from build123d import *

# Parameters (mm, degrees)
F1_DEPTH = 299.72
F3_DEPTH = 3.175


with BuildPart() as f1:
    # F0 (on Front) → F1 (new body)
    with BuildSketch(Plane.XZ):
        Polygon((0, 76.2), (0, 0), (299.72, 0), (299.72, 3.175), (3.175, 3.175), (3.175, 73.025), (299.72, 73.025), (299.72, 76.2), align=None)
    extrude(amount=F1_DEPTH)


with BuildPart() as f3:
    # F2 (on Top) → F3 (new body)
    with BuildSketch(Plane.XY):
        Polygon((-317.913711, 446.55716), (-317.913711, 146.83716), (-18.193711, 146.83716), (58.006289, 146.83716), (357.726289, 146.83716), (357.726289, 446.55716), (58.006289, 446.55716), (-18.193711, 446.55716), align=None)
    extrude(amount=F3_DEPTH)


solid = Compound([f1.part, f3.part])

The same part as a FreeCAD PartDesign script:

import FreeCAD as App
import Part
import Sketcher

V = App.Vector
Q = App.Units.Quantity


def add_polygon(sketch, points):
    """Adds a closed chain of lines whose ends are joined by coincident constraints."""
    first, n = sketch.GeometryCount, len(points)
    for a, b in zip(points, points[1:] + points[:1]):
        sketch.addGeometry(Part.LineSegment(App.Vector(*a, 0), App.Vector(*b, 0)), False)
    for i in range(n):
        sketch.addConstraint(Sketcher.Constraint("Coincident", first + i, 2, first + (i + 1) % n, 1))

doc = App.newDocument("Part")
body = doc.addObject("PartDesign::Body", "Body")

# Sketch on XZ plane
sketch1 = body.newObject("Sketcher::SketchObject", "Sketch")
sketch1.AttachmentSupport = (doc.getObject("XZ_Plane"), [""])
sketch1.MapMode = "FlatFace"
add_polygon(sketch1, [(0, 76.2), (0, 0), (299.7, 0), (299.7, 3.2), (3.2, 3.2), (3.2, 73), (299.7, 73), (299.7, 76.2)])  # lines 0-7
sketch1.addConstraint(Sketcher.Constraint("Vertical", 0))
sketch1.addConstraint(Sketcher.Constraint("Horizontal", 1))
sketch1.addConstraint(Sketcher.Constraint("Vertical", 2))
sketch1.addConstraint(Sketcher.Constraint("Horizontal", 3))
sketch1.addConstraint(Sketcher.Constraint("Vertical", 4))
sketch1.addConstraint(Sketcher.Constraint("Horizontal", 5))
sketch1.addConstraint(Sketcher.Constraint("Vertical", 6))
sketch1.addConstraint(Sketcher.Constraint("Horizontal", 7))
sketch1.addConstraint(Sketcher.Constraint("Coincident", 0, 2, -1, 1))
sketch1.addConstraint(Sketcher.Constraint("Vertical", 2, 2, 5, 2))
sketch1.addConstraint(Sketcher.Constraint("Equal", 2, 6))
sketch1.addConstraint(Sketcher.Constraint("DistanceY", 0, 2, 0, 1, Q("3 in")))
sketch1.addConstraint(Sketcher.Constraint("DistanceX", 1, 1, 1, 2, Q("11.8 in")))
sketch1.addConstraint(Sketcher.Constraint("DistanceY", 4, 1, 4, 2, Q("2.75 in")))
sketch1.addConstraint(Sketcher.Constraint("DistanceX", 3, 2, 3, 1, Q("11.675 in")))
pad1 = body.newObject("PartDesign::Pad", "Pad")
pad1.Profile = sketch1
pad1.Length = Q("11.8 in")
body2 = doc.addObject("PartDesign::Body", "Body001")

# Sketch on XY plane
sketch2 = body2.newObject("Sketcher::SketchObject", "Sketch001")
sketch2.AttachmentSupport = (doc.getObject("XY_Plane001"), [""])
sketch2.MapMode = "FlatFace"
add_polygon(sketch2, [(-318, 447), (-318, 147), (358, 147), (358, 447)])  # lines 0-3
sketch2.addConstraint(Sketcher.Constraint("Vertical", 0))
sketch2.addConstraint(Sketcher.Constraint("Horizontal", 1))
sketch2.addConstraint(Sketcher.Constraint("Vertical", 2))
sketch2.addConstraint(Sketcher.Constraint("Horizontal", 3))
sketch2.addConstraint(Sketcher.Constraint("DistanceX", 1, 1, 1, 2, Q("26.6 in")))
sketch2.addConstraint(Sketcher.Constraint("DistanceY", 0, 2, 0, 1, Q("11.8 in")))
sketch2.addConstraint(Sketcher.Constraint("DistanceX", 0, 2, -1, 1, 317.913711))
sketch2.addConstraint(Sketcher.Constraint("DistanceY", -1, 1, 0, 2, 146.83716))
pad2 = body2.newObject("PartDesign::Pad", "Pad001")
pad2.Profile = sketch2
pad2.Length = Q("0.125 in")

doc.recompute()
